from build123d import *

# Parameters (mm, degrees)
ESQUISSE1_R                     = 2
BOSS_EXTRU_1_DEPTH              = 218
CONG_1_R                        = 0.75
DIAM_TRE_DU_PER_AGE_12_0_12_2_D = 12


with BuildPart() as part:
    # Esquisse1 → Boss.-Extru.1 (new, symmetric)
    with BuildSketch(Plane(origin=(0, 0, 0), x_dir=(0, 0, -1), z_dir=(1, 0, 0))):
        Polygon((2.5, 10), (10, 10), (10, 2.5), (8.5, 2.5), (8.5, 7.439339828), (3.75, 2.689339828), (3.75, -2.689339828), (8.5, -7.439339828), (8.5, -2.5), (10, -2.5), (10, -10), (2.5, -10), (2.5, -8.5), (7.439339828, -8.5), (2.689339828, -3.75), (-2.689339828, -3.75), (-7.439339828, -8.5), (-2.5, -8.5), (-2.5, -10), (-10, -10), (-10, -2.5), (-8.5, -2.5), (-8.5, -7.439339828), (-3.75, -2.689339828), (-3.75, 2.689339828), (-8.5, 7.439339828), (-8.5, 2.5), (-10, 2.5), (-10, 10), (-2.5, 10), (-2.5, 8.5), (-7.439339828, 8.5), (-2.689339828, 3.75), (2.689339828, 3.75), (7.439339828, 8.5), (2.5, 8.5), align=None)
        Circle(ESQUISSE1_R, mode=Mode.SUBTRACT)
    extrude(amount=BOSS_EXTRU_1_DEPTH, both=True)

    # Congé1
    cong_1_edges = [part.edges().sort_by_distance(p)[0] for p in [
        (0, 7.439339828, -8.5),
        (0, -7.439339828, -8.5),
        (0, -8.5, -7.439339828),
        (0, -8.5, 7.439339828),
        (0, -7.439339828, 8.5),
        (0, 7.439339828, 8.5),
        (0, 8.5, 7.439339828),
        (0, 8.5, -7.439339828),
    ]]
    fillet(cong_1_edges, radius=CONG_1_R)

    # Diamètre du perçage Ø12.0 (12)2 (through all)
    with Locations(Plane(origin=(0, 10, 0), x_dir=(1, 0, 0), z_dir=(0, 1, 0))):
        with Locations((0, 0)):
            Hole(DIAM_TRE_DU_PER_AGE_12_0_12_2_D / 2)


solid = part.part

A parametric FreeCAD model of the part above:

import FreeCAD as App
import Part
import Sketcher

V = App.Vector
Q = App.Units.Quantity


def edges_at(feature, points):
    """Names of the edges that pass closest to the given points."""
    edges = feature.Shape.Edges
    near = lambda p: min(range(len(edges)), key=lambda i: edges[i].distToShape(Part.Vertex(*p))[0])
    return sorted({f"Edge{near(p) + 1}" for p in points})

doc = App.newDocument("Part")
body = doc.addObject("PartDesign::Body", "Body")

# Sketch on YZ plane
sketch1 = body.newObject("Sketcher::SketchObject", "Sketch")
sketch1.AttachmentSupport = (doc.getObject("YZ_Plane"), [""])
sketch1.MapMode = "FlatFace"
sketch1.addGeometry(Part.LineSegment(V(10, -10, 0), V(10, -2.5, 0)), False)
sketch1.addGeometry(Part.LineSegment(V(10, -2.5, 0), V(8.5, -2.5, 0)), False)
sketch1.addGeometry(Part.LineSegment(V(8.5, -2.5, 0), V(8.5, -7.43934, 0)), False)
sketch1.addGeometry(Part.LineSegment(V(8.5, -7.43934, 0), V(3.75, -2.68934, 0)), False)
sketch1.addGeometry(Part.LineSegment(V(3.75, -2.68934, 0), V(3.75, 2.68934, 0)), False)
sketch1.addGeometry(Part.LineSegment(V(3.75, 2.68934, 0), V(8.5, 7.43934, 0)), False)
sketch1.addGeometry(Part.LineSegment(V(8.5, 7.43934, 0), V(8.5, 2.5, 0)), False)
sketch1.addGeometry(Part.LineSegment(V(8.5, 2.5, 0), V(10, 2.5, 0)), False)
sketch1.addGeometry(Part.LineSegment(V(10, 2.5, 0), V(10, 10, 0)), False)
sketch1.addGeometry(Part.LineSegment(V(10, 10, 0), V(2.5, 10, 0)), False)
sketch1.addGeometry(Part.LineSegment(V(2.5, 10, 0), V(2.5, 8.5, 0)), False)
sketch1.addGeometry(Part.LineSegment(V(2.5, 8.5, 0), V(7.43934, 8.5, 0)), False)
sketch1.addGeometry(Part.LineSegment(V(7.43934, 8.5, 0), V(2.68934, 3.75, 0)), False)
sketch1.addGeometry(Part.LineSegment(V(2.68934, 3.75, 0), V(-2.68934, 3.75, 0)), False)
sketch1.addGeometry(Part.LineSegment(V(-2.68934, 3.75, 0), V(-7.43934, 8.5, 0)), False)
sketch1.addGeometry(Part.LineSegment(V(-7.43934, 8.5, 0), V(-2.5, 8.5, 0)), False)
sketch1.addGeometry(Part.LineSegment(V(-2.5, 8.5, 0), V(-2.5, 10, 0)), False)
sketch1.addGeometry(Part.LineSegment(V(-2.5, 10, 0), V(-10, 10, 0)), False)
sketch1.addGeometry(Part.LineSegment(V(-10, 10, 0), V(-10, 2.5, 0)), False)
sketch1.addGeometry(Part.LineSegment(V(-10, 2.5, 0), V(-8.5, 2.5, 0)), False)
sketch1.addGeometry(Part.LineSegment(V(-8.5, 2.5, 0), V(-8.5, 7.43934, 0)), False)
sketch1.addGeometry(Part.LineSegment(V(-8.5, 7.43934, 0), V(-3.75, 2.68934, 0)), False)
sketch1.addGeometry(Part.LineSegment(V(-3.75, 2.68934, 0), V(-3.75, -2.68934, 0)), False)
sketch1.addGeometry(Part.LineSegment(V(-3.75, -2.68934, 0), V(-8.5, -7.43934, 0)), False)
sketch1.addGeometry(Part.LineSegment(V(-8.5, -7.43934, 0), V(-8.5, -2.5, 0)), False)
sketch1.addGeometry(Part.LineSegment(V(-8.5, -2.5, 0), V(-10, -2.5, 0)), False)
sketch1.addGeometry(Part.LineSegment(V(-10, -2.5, 0), V(-10, -10, 0)), False)
sketch1.addGeometry(Part.LineSegment(V(-10, -10, 0), V(-2.5, -10, 0)), False)
sketch1.addGeometry(Part.LineSegment(V(-2.5, -10, 0), V(-2.5, -8.5, 0)), False)
sketch1.addGeometry(Part.LineSegment(V(-2.5, -8.5, 0), V(-7.43934, -8.5, 0)), False)
sketch1.addGeometry(Part.LineSegment(V(-7.43934, -8.5, 0), V(-2.68934, -3.75, 0)), False)
sketch1.addGeometry(Part.LineSegment(V(-2.68934, -3.75, 0), V(2.68934, -3.75, 0)), False)
sketch1.addGeometry(Part.LineSegment(V(2.68934, -3.75, 0), V(7.43934, -8.5, 0)), False)
sketch1.addGeometry(Part.LineSegment(V(7.43934, -8.5, 0), V(2.5, -8.5, 0)), False)
sketch1.addGeometry(Part.LineSegment(V(2.5, -8.5, 0), V(2.5, -10, 0)), False)
sketch1.addGeometry(Part.LineSegment(V(2.5, -10, 0), V(10, -10, 0)), False)
sketch1.addGeometry(Part.Circle(V(0, 0, 0), V(0, 0, 1), 2), False)
sketch1.addConstraint(Sketcher.Constraint("Coincident", 0, 2, 1, 1))
sketch1.addConstraint(Sketcher.Constraint("Coincident", 1, 2, 2, 1))
sketch1.addConstraint(Sketcher.Constraint("Coincident", 2, 2, 3, 1))
sketch1.addConstraint(Sketcher.Constraint("Coincident", 3, 2, 4, 1))
sketch1.addConstraint(Sketcher.Constraint("Coincident", 4, 2, 5, 1))
sketch1.addConstraint(Sketcher.Constraint("Coincident", 5, 2, 6, 1))
sketch1.addConstraint(Sketcher.Constraint("Coincident", 6, 2, 7, 1))
sketch1.addConstraint(Sketcher.Constraint("Coincident", 7, 2, 8, 1))
sketch1.addConstraint(Sketcher.Constraint("Coincident", 8, 2, 9, 1))
sketch1.addConstraint(Sketcher.Constraint("Coincident", 9, 2, 10, 1))
sketch1.addConstraint(Sketcher.Constraint("Coincident", 10, 2, 11, 1))
sketch1.addConstraint(Sketcher.Constraint("Coincident", 11, 2, 12, 1))
sketch1.addConstraint(Sketcher.Constraint("Coincident", 12, 2, 13, 1))
sketch1.addConstraint(Sketcher.Constraint("Coincident", 13, 2, 14, 1))
sketch1.addConstraint(Sketcher.Constraint("Coincident", 14, 2, 15, 1))
sketch1.addConstraint(Sketcher.Constraint("Coincident", 15, 2, 16, 1))
sketch1.addConstraint(Sketcher.Constraint("Coincident", 16, 2, 17, 1))
sketch1.addConstraint(Sketcher.Constraint("Coincident", 17, 2, 18, 1))
sketch1.addConstraint(Sketcher.Constraint("Coincident", 18, 2, 19, 1))
sketch1.addConstraint(Sketcher.Constraint("Coincident", 19, 2, 20, 1))
sketch1.addConstraint(Sketcher.Constraint("Coincident", 20, 2, 21, 1))
sketch1.addConstraint(Sketcher.Constraint("Coincident", 21, 2, 22, 1))
sketch1.addConstraint(Sketcher.Constraint("Coincident", 22, 2, 23, 1))
sketch1.addConstraint(Sketcher.Constraint("Coincident", 23, 2, 24, 1))
sketch1.addConstraint(Sketcher.Constraint("Coincident", 24, 2, 25, 1))
sketch1.addConstraint(Sketcher.Constraint("Coincident", 25, 2, 26, 1))
sketch1.addConstraint(Sketcher.Constraint("Coincident", 26, 2, 27, 1))
sketch1.addConstraint(Sketcher.Constraint("Coincident", 27, 2, 28, 1))
sketch1.addConstraint(Sketcher.Constraint("Coincident", 28, 2, 29, 1))
sketch1.addConstraint(Sketcher.Constraint("Coincident", 29, 2, 30, 1))
sketch1.addConstraint(Sketcher.Constraint("Coincident", 30, 2, 31, 1))
sketch1.addConstraint(Sketcher.Constraint("Coincident", 31, 2, 32, 1))
sketch1.addConstraint(Sketcher.Constraint("Coincident", 32, 2, 33, 1))
sketch1.addConstraint(Sketcher.Constraint("Coincident", 33, 2, 34, 1))
sketch1.addConstraint(Sketcher.Constraint("Coincident", 34, 2, 35, 1))
sketch1.addConstraint(Sketcher.Constraint("Coincident", 35, 2, 0, 1))
sketch1.addConstraint(Sketcher.Constraint("Vertical", 0))
sketch1.addConstraint(Sketcher.Constraint("Horizontal", 1))
sketch1.addConstraint(Sketcher.Constraint("Vertical", 2))
sketch1.addConstraint(Sketcher.Constraint("Vertical", 4))
sketch1.addConstraint(Sketcher.Constraint("Vertical", 6))
sketch1.addConstraint(Sketcher.Constraint("Horizontal", 7))
sketch1.addConstraint(Sketcher.Constraint("Vertical", 8))
sketch1.addConstraint(Sketcher.Constraint("Horizontal", 9))
sketch1.addConstraint(Sketcher.Constraint("Vertical", 10))
sketch1.addConstraint(Sketcher.Constraint("Horizontal", 11))
sketch1.addConstraint(Sketcher.Constraint("Horizontal", 13))
sketch1.addConstraint(Sketcher.Constraint("Horizontal", 15))
sketch1.addConstraint(Sketcher.Constraint("Vertical", 16))
sketch1.addConstraint(Sketcher.Constraint("Horizontal", 17))
sketch1.addConstraint(Sketcher.Constraint("Vertical", 18))
sketch1.addConstraint(Sketcher.Constraint("Horizontal", 19))
sketch1.addConstraint(Sketcher.Constraint("Vertical", 20))
sketch1.addConstraint(Sketcher.Constraint("Vertical", 22))
sketch1.addConstraint(Sketcher.Constraint("Vertical", 24))
sketch1.addConstraint(Sketcher.Constraint("Horizontal", 25))
sketch1.addConstraint(Sketcher.Constraint("Vertical", 26))
sketch1.addConstraint(Sketcher.Constraint("Horizontal", 27))
sketch1.addConstraint(Sketcher.Constraint("Vertical", 28))
sketch1.addConstraint(Sketcher.Constraint("Horizontal", 29))
sketch1.addConstraint(Sketcher.Constraint("Horizontal", 31))
sketch1.addConstraint(Sketcher.Constraint("Horizontal", 33))
sketch1.addConstraint(Sketcher.Constraint("Vertical", 34))
sketch1.addConstraint(Sketcher.Constraint("Horizontal", 35))
sketch1.addConstraint(Sketcher.Constraint("Coincident", 36, 3, -1, 1))
sketch1.addConstraint(Sketcher.Constraint("Symmetric", 0, 2, 18, 2, -1, 1))
sketch1.addConstraint(Sketcher.Constraint("Symmetric", 2, 2, 20, 2, -1, 1))
sketch1.addConstraint(Sketcher.Constraint("Symmetric", 3, 2, 21, 2, -1, 1))
sketch1.addConstraint(Sketcher.Constraint("Symmetric", 5, 2, 23, 2, -1, 1))
sketch1.addConstraint(Sketcher.Constraint("Symmetric", 7, 2, 25, 2, -1, 1))
sketch1.addConstraint(Sketcher.Constraint("Symmetric", 9, 2, 27, 2, -1, 1))
sketch1.addConstraint(Sketcher.Constraint("Symmetric", 11, 2, 29, 2, -1, 1))
sketch1.addConstraint(Sketcher.Constraint("Symmetric", 12, 2, 30, 2, -1, 1))
sketch1.addConstraint(Sketcher.Constraint("Symmetric", 14, 2, 32, 2, -1, 1))
sketch1.addConstraint(Sketcher.Constraint("Symmetric", 16, 2, 34, 2, -1, 1))
sketch1.addConstraint(Sketcher.Constraint("Symmetric", 11, 2, 14, 2, -2))
sketch1.addConstraint(Sketcher.Constraint("Symmetric", 9, 2, 16, 2, -2))
sketch1.addConstraint(Sketcher.Constraint("Symmetric", 7, 2, 18, 2, -2))
sketch1.addConstraint(Sketcher.Constraint("Symmetric", 5, 2, 20, 2, -2))
sketch1.addConstraint(Sketcher.Constraint("Perpendicular", 3, 5))
sketch1.addConstraint(Sketcher.Constraint("Parallel", 5, 12))
sketch1.addConstraint(Sketcher.Constraint("Perpendicular", 12, 14))
sketch1.addConstraint(Sketcher.Constraint("Perpendicular", 21, 23))
sketch1.addConstraint(Sketcher.Constraint("Perpendicular", 30, 32))
sketch1.addConstraint(Sketcher.Constraint("Horizontal", 4, 2, 21, 2))
sketch1.addConstraint(Sketcher.Constraint("Equal", 35, 0))
sketch1.addConstraint(Sketcher.Constraint("Equal", 33, 2))
sketch1.addConstraint(Sketcher.Constraint("Equal", 31, 4))
sketch1.addConstraint(Sketcher.Constraint("Equal", 25, 10))
sketch1.addConstraint(Sketcher.Constraint("Equal", 5, 12))
sketch1.addConstraint(Sketcher.Constraint("Diameter", 36, Q("4 mm")))
sketch1.addConstraint(Sketcher.Constraint("DistanceX", 1, 2, 1, 1, Q("1.5 mm")))
sketch1.addConstraint(Sketcher.Constraint("DistanceX", 9, 2, 9, 1, Q("7.5 mm")))
sketch1.addConstraint(Sketcher.Constraint("DistanceX", -1, 1, 0, 2, Q("10 mm")))
sketch1.addConstraint(Sketcher.Constraint("DistanceX", 22, 2, 3, 2, Q("7.5 mm")))
sketch1.addConstraint(Sketcher.Constraint("DistanceX", 11, 1, 11, 2, Q("4.93934 mm")))
pad1 = body.newObject("PartDesign::Pad", "Pad")
pad1.Profile = sketch1
pad1.Length = 436
pad1.Midplane = True
doc.recompute()

fillet = body.newObject("PartDesign::Fillet", "Fillet")
fillet.Base = (pad1, edges_at(pad1, [
    (0, 7.439, -8.5),
    (0, -7.439, -8.5),
    (0, -8.5, -7.439),
    (0, -8.5, 7.439),
    (0, -7.439, 8.5),
    (0, 7.439, 8.5),
    (0, 8.5, 7.439),
    (0, 8.5, -7.439),
]))
fillet.Radius = 0.75

# Sketch on XZ plane
sketch2 = body.newObject("Sketcher::SketchObject", "Sketch001")
sketch2.AttachmentSupport = (doc.getObject("XZ_Plane"), [""])
sketch2.MapMode = "FlatFace"
sketch2.AttachmentOffset = App.Placement(V(0, 0, -10), App.Rotation())
sketch2.addGeometry(Part.Circle(V(0, 0, 0), V(0, 0, 1), 6), False)
sketch2.addConstraint(Sketcher.Constraint("Coincident", 0, 3, -1, 1))
sketch2.addConstraint(Sketcher.Constraint("Diameter", 0, Q("12 mm")))
doc.recompute()
hole = body.newObject("PartDesign::Hole", "Hole")
hole.Profile = sketch2
hole.ThreadType = "None"
hole.Diameter = 12
hole.DepthType = "ThroughAll"
hole.Reversed = True

doc.recompute()
